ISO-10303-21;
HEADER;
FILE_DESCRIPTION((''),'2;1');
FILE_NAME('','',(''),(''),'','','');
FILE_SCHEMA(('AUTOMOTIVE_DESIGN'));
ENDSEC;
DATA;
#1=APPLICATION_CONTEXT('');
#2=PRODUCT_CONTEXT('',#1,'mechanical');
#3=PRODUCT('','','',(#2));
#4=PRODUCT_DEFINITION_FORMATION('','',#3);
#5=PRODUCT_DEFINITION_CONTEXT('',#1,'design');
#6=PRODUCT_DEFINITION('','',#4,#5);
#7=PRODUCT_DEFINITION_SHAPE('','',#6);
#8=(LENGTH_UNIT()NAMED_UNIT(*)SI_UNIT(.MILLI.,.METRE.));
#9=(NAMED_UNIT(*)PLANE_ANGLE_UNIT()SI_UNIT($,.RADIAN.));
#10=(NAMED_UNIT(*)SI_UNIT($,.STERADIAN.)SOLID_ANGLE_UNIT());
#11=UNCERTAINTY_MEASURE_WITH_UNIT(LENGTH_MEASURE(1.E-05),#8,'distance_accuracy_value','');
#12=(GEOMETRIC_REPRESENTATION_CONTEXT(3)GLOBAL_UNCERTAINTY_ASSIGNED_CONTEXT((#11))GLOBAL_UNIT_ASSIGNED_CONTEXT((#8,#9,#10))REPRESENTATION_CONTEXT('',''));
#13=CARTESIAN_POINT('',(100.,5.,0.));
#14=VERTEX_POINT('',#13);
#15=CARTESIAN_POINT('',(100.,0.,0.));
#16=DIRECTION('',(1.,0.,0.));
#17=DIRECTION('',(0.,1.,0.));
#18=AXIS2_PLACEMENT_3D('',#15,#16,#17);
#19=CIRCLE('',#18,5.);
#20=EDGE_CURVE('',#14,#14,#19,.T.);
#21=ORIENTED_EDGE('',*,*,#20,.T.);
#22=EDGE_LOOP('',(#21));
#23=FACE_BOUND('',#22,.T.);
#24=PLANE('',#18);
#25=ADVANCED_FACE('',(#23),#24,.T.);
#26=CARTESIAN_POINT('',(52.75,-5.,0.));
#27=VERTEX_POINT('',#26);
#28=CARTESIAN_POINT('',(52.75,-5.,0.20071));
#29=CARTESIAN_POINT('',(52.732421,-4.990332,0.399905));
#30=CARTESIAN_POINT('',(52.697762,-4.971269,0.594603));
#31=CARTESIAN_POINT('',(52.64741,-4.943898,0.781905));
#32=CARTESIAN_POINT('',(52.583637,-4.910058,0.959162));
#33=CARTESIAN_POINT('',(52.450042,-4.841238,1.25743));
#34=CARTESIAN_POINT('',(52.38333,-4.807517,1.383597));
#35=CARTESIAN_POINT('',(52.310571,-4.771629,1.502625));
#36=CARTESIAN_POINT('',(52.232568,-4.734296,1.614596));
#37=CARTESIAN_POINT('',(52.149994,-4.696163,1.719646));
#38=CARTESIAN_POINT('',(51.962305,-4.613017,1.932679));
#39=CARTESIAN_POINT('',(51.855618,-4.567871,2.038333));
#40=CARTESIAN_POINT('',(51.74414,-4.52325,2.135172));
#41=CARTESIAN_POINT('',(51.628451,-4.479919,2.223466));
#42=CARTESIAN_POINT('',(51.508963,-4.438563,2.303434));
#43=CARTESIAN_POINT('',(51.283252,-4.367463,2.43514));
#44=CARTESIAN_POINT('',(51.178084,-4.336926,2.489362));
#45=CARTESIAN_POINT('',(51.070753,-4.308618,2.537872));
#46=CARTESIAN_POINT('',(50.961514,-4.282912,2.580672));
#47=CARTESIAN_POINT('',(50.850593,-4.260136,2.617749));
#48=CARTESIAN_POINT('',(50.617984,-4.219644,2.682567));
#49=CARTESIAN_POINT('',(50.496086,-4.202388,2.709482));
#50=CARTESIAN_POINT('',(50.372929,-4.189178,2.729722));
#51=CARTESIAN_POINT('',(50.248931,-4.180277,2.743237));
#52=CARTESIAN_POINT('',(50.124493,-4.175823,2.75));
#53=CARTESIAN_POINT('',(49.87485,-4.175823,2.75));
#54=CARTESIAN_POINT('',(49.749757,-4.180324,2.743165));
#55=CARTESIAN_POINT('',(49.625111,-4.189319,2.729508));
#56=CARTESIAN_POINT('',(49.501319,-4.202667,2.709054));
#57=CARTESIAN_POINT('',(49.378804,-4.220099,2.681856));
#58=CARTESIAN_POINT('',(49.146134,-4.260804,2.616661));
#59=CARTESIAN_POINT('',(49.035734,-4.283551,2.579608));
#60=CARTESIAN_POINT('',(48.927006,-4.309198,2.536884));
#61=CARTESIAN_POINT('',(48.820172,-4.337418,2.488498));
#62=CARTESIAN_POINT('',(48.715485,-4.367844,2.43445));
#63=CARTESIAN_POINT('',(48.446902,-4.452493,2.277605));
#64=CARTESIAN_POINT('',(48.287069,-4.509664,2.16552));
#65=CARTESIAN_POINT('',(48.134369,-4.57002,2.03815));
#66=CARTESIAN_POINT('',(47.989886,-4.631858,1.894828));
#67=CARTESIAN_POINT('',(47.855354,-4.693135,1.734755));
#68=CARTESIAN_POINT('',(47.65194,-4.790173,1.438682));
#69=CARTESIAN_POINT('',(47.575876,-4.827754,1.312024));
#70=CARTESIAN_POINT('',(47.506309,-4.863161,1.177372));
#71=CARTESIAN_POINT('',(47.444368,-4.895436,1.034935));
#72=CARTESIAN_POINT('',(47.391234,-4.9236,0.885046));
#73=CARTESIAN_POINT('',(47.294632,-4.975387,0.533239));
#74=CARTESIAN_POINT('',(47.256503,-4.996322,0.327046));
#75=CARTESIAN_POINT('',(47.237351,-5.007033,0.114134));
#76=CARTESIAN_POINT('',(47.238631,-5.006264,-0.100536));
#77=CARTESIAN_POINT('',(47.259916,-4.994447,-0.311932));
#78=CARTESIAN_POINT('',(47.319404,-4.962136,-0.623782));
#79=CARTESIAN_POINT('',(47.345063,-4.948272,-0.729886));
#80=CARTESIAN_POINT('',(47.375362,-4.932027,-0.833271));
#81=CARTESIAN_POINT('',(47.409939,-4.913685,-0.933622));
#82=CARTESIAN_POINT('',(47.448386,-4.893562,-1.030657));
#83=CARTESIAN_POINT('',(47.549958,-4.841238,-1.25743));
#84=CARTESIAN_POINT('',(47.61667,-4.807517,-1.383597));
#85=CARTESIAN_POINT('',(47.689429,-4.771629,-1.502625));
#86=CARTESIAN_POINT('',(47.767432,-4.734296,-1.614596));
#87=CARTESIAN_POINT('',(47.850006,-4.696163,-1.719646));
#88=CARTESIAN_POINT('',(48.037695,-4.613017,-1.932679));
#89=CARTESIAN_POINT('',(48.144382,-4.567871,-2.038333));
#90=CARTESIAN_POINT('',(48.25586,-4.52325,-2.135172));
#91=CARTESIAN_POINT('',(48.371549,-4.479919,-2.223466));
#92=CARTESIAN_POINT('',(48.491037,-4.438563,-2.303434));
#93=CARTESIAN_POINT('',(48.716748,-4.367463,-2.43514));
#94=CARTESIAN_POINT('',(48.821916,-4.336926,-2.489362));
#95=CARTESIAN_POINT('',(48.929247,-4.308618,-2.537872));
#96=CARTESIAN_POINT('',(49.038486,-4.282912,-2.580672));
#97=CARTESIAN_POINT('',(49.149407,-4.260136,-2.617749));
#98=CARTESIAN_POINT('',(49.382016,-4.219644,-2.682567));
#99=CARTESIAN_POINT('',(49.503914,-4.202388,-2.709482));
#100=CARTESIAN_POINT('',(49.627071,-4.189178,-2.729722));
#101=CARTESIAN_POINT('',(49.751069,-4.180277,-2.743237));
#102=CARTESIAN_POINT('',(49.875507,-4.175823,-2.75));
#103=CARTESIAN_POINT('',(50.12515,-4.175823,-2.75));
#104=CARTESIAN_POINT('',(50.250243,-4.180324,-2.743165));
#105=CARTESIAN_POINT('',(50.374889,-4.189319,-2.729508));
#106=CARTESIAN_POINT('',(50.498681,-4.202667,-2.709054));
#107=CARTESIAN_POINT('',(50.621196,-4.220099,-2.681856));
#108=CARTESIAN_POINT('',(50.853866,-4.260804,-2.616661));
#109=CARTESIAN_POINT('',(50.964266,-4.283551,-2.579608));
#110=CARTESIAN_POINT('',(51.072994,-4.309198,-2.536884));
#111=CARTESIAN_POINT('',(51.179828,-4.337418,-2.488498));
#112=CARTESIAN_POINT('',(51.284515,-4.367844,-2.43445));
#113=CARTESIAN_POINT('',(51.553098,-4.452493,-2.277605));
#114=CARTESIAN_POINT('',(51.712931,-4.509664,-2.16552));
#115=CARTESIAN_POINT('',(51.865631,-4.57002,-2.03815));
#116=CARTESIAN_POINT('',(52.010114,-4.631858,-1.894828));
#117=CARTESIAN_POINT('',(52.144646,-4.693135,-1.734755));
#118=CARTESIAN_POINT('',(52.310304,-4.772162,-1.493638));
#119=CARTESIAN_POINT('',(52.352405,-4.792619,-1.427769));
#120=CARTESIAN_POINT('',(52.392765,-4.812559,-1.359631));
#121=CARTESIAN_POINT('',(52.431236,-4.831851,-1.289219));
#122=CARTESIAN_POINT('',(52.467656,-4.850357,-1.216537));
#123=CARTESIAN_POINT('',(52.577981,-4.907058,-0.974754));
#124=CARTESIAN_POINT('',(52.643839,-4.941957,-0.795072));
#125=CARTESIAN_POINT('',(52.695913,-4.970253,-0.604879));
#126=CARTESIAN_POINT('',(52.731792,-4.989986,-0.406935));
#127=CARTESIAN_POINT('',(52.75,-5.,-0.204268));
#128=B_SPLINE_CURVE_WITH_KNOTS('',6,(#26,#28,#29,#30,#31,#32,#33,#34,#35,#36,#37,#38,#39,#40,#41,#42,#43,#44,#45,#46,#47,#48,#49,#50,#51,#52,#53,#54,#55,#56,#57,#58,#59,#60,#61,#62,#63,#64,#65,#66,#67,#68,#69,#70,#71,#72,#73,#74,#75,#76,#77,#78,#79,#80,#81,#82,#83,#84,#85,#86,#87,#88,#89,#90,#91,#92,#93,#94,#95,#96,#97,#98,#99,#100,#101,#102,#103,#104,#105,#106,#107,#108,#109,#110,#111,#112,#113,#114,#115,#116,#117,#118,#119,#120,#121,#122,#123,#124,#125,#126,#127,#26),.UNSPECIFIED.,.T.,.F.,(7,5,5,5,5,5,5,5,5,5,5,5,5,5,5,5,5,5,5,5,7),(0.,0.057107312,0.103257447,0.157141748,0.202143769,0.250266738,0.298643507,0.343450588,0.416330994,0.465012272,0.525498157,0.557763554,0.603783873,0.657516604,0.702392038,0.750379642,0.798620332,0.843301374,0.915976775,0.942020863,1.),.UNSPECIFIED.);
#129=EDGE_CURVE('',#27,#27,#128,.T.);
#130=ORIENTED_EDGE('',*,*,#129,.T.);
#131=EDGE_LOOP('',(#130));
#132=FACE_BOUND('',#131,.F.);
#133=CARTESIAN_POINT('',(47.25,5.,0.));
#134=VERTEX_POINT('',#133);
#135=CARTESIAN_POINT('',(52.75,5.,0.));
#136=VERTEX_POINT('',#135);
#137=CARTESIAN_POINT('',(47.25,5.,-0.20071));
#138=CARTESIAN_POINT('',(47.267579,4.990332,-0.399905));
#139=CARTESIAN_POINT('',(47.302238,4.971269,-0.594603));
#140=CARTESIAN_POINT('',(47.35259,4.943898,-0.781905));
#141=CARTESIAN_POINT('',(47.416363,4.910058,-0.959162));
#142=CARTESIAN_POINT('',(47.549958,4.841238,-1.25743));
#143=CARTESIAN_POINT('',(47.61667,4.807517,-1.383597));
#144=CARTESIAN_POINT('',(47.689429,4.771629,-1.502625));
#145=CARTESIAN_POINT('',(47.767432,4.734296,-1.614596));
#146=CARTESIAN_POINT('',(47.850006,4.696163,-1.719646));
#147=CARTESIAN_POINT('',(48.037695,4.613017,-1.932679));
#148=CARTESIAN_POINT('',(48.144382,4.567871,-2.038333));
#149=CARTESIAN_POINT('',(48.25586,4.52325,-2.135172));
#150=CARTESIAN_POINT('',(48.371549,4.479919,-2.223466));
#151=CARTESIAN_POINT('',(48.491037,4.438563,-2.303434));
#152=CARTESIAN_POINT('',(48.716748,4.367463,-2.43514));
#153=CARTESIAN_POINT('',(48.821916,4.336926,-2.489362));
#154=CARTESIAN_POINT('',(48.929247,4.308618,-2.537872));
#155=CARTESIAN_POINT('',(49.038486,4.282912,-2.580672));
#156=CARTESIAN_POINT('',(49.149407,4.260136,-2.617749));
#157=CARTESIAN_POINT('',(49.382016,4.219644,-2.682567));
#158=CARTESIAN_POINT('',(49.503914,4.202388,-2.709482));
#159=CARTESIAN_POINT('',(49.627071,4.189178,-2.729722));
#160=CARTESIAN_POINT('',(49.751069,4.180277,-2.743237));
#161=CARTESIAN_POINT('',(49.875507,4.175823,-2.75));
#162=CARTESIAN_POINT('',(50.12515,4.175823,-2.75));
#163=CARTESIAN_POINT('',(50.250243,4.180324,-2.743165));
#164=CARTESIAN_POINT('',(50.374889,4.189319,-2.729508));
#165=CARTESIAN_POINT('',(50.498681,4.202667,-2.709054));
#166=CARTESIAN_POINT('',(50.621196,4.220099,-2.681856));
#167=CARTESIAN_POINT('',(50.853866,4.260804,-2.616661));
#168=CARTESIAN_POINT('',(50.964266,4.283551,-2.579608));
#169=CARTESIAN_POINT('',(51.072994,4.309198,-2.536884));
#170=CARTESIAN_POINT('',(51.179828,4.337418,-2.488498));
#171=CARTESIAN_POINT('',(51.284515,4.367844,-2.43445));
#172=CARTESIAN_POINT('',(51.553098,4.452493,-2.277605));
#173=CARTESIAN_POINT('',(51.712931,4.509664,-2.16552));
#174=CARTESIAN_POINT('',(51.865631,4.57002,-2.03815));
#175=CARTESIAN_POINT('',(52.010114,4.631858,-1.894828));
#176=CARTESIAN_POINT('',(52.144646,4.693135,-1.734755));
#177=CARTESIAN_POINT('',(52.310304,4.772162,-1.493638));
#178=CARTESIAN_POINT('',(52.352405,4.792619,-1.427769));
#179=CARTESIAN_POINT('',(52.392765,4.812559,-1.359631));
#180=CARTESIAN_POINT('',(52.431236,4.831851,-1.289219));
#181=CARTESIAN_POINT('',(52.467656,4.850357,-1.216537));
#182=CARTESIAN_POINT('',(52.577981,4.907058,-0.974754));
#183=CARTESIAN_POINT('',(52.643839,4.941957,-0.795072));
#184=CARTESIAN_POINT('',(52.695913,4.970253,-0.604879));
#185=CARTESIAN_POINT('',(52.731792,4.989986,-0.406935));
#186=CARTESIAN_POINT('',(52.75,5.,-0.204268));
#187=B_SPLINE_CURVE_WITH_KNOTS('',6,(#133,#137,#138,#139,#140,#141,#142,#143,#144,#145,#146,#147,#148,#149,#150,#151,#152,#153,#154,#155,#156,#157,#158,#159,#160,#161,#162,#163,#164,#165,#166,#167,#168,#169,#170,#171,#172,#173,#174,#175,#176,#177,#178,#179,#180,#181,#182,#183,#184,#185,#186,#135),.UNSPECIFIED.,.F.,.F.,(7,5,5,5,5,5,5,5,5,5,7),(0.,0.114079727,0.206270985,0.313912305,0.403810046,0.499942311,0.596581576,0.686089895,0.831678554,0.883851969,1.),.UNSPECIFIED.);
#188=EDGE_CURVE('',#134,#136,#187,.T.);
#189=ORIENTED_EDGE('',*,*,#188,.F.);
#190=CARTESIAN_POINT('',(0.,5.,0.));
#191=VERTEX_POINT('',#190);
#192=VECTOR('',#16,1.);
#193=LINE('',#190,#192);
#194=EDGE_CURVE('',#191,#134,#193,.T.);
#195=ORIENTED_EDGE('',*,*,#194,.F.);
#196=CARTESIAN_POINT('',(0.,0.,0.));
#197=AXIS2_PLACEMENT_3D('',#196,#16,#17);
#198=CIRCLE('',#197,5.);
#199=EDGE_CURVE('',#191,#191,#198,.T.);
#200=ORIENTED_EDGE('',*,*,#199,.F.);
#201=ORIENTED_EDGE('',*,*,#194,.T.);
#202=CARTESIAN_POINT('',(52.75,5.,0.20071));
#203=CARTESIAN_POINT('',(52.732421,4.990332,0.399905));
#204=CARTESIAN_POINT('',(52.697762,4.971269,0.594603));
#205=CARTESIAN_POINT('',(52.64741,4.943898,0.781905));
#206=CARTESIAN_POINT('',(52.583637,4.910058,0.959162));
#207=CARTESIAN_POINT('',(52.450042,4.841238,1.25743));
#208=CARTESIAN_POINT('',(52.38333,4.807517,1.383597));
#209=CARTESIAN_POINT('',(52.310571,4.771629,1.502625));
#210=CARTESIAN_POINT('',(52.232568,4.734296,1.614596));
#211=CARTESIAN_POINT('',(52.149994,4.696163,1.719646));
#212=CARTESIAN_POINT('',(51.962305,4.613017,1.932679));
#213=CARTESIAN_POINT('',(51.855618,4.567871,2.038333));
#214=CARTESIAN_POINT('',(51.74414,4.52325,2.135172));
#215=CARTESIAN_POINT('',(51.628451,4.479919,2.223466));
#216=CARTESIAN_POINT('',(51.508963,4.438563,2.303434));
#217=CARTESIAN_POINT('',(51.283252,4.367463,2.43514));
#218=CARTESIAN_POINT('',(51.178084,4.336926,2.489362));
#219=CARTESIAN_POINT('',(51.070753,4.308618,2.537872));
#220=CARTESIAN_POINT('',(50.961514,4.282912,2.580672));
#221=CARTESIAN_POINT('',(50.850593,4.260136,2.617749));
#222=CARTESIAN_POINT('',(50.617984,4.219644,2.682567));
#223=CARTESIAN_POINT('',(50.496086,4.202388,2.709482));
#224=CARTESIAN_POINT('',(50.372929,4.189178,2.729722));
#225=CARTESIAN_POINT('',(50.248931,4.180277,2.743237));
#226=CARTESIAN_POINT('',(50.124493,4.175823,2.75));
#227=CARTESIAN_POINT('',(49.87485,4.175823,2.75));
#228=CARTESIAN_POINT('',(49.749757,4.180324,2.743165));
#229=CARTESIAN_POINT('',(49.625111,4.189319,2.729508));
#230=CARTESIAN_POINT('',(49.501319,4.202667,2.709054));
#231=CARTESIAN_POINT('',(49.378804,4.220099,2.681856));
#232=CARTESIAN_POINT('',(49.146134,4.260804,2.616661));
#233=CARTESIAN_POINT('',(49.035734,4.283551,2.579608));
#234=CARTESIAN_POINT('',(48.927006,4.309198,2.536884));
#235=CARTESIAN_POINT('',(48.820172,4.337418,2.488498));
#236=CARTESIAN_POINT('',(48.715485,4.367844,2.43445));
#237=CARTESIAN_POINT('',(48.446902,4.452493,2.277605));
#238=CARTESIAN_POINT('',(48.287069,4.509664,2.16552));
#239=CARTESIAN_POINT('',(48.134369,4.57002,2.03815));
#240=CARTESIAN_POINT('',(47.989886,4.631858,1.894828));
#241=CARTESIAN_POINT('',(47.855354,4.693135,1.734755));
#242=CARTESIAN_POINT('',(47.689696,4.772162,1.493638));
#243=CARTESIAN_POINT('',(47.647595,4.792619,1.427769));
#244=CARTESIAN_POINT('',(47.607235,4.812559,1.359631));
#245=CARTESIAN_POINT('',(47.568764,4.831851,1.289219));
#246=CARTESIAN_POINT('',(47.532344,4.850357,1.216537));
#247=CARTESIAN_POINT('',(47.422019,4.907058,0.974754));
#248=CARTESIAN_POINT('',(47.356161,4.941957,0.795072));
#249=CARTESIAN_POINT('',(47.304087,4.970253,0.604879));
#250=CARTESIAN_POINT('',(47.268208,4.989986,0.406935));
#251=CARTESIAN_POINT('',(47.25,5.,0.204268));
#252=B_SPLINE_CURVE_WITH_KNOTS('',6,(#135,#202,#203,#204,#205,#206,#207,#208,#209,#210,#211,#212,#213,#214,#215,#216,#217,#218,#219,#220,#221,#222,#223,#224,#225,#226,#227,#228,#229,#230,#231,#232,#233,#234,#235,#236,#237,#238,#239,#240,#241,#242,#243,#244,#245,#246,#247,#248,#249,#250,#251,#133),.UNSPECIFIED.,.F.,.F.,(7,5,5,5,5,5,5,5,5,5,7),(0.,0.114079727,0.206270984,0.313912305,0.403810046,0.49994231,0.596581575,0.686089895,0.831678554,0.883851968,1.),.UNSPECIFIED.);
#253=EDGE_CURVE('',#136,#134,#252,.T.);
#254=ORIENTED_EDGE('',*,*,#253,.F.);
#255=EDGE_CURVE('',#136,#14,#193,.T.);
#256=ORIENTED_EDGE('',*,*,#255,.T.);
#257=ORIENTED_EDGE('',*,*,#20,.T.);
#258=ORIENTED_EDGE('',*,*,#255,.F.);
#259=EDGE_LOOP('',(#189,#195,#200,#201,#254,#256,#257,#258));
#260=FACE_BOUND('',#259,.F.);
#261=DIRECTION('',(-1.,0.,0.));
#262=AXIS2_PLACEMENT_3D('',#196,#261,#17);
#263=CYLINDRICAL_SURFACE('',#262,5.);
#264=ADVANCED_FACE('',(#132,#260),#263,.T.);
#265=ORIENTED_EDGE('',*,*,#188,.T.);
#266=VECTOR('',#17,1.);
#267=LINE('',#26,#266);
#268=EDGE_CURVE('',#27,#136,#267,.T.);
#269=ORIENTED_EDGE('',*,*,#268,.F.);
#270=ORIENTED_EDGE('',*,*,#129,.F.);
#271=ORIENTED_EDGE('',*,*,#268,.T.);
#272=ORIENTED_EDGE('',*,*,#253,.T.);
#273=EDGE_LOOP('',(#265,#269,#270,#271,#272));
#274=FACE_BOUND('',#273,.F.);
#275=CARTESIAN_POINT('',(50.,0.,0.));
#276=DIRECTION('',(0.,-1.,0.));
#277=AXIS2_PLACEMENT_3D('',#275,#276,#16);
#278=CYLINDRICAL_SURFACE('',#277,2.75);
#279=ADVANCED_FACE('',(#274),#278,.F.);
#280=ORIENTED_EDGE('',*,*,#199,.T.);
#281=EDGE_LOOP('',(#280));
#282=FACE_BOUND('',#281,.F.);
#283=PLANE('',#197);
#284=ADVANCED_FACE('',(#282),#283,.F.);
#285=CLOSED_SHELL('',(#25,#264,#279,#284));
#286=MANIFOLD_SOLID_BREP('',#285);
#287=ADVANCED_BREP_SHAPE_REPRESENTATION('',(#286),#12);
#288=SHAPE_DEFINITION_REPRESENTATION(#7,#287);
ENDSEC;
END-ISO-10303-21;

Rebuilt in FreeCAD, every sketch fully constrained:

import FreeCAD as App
import Part
import Sketcher

doc = App.newDocument("Part")
body = doc.addObject("PartDesign::Body", "Body")

# Sketch on YZ plane
sketch1 = doc.addObject("Sketcher::SketchObject", "Sketch")
body.addObject(sketch1)
sketch1.AttachmentSupport = (doc.YZ_Plane, [""])
sketch1.MapMode = "FlatFace"
sketch1.addGeometry(Part.Circle(App.Vector(0, 0, 0), App.Vector(0, 0, 1), 5), False)
sketch1.addConstraint([
    Sketcher.Constraint("Coincident", 0, 3, -1, 1),
    Sketcher.Constraint("Diameter", 0, 10.0),
])
pad1 = doc.addObject("PartDesign::Pad", "Pad")
body.addObject(pad1)
pad1.Profile = sketch1
pad1.Length = 100

# Sketch on XZ plane
sketch2 = doc.addObject("Sketcher::SketchObject", "Sketch001")
body.addObject(sketch2)
sketch2.AttachmentSupport = (doc.XZ_Plane, [""])
sketch2.MapMode = "FlatFace"
sketch2.addGeometry(Part.Circle(App.Vector(50, 0, 0), App.Vector(0, 0, 1), 2.8), False)
sketch2.addConstraint([
    Sketcher.Constraint("PointOnObject", 0, 3, -1),
    Sketcher.Constraint("Diameter", 0, 5.5),
    Sketcher.Constraint("DistanceX", -1, 1, 0, 3, 50.0),
])
pocket1 = doc.addObject("PartDesign::Pocket", "Pocket")
body.addObject(pocket1)
pocket1.Profile = sketch2
pocket1.Type = "ThroughAll"
pocket1.Midplane = True

doc.recompute()
